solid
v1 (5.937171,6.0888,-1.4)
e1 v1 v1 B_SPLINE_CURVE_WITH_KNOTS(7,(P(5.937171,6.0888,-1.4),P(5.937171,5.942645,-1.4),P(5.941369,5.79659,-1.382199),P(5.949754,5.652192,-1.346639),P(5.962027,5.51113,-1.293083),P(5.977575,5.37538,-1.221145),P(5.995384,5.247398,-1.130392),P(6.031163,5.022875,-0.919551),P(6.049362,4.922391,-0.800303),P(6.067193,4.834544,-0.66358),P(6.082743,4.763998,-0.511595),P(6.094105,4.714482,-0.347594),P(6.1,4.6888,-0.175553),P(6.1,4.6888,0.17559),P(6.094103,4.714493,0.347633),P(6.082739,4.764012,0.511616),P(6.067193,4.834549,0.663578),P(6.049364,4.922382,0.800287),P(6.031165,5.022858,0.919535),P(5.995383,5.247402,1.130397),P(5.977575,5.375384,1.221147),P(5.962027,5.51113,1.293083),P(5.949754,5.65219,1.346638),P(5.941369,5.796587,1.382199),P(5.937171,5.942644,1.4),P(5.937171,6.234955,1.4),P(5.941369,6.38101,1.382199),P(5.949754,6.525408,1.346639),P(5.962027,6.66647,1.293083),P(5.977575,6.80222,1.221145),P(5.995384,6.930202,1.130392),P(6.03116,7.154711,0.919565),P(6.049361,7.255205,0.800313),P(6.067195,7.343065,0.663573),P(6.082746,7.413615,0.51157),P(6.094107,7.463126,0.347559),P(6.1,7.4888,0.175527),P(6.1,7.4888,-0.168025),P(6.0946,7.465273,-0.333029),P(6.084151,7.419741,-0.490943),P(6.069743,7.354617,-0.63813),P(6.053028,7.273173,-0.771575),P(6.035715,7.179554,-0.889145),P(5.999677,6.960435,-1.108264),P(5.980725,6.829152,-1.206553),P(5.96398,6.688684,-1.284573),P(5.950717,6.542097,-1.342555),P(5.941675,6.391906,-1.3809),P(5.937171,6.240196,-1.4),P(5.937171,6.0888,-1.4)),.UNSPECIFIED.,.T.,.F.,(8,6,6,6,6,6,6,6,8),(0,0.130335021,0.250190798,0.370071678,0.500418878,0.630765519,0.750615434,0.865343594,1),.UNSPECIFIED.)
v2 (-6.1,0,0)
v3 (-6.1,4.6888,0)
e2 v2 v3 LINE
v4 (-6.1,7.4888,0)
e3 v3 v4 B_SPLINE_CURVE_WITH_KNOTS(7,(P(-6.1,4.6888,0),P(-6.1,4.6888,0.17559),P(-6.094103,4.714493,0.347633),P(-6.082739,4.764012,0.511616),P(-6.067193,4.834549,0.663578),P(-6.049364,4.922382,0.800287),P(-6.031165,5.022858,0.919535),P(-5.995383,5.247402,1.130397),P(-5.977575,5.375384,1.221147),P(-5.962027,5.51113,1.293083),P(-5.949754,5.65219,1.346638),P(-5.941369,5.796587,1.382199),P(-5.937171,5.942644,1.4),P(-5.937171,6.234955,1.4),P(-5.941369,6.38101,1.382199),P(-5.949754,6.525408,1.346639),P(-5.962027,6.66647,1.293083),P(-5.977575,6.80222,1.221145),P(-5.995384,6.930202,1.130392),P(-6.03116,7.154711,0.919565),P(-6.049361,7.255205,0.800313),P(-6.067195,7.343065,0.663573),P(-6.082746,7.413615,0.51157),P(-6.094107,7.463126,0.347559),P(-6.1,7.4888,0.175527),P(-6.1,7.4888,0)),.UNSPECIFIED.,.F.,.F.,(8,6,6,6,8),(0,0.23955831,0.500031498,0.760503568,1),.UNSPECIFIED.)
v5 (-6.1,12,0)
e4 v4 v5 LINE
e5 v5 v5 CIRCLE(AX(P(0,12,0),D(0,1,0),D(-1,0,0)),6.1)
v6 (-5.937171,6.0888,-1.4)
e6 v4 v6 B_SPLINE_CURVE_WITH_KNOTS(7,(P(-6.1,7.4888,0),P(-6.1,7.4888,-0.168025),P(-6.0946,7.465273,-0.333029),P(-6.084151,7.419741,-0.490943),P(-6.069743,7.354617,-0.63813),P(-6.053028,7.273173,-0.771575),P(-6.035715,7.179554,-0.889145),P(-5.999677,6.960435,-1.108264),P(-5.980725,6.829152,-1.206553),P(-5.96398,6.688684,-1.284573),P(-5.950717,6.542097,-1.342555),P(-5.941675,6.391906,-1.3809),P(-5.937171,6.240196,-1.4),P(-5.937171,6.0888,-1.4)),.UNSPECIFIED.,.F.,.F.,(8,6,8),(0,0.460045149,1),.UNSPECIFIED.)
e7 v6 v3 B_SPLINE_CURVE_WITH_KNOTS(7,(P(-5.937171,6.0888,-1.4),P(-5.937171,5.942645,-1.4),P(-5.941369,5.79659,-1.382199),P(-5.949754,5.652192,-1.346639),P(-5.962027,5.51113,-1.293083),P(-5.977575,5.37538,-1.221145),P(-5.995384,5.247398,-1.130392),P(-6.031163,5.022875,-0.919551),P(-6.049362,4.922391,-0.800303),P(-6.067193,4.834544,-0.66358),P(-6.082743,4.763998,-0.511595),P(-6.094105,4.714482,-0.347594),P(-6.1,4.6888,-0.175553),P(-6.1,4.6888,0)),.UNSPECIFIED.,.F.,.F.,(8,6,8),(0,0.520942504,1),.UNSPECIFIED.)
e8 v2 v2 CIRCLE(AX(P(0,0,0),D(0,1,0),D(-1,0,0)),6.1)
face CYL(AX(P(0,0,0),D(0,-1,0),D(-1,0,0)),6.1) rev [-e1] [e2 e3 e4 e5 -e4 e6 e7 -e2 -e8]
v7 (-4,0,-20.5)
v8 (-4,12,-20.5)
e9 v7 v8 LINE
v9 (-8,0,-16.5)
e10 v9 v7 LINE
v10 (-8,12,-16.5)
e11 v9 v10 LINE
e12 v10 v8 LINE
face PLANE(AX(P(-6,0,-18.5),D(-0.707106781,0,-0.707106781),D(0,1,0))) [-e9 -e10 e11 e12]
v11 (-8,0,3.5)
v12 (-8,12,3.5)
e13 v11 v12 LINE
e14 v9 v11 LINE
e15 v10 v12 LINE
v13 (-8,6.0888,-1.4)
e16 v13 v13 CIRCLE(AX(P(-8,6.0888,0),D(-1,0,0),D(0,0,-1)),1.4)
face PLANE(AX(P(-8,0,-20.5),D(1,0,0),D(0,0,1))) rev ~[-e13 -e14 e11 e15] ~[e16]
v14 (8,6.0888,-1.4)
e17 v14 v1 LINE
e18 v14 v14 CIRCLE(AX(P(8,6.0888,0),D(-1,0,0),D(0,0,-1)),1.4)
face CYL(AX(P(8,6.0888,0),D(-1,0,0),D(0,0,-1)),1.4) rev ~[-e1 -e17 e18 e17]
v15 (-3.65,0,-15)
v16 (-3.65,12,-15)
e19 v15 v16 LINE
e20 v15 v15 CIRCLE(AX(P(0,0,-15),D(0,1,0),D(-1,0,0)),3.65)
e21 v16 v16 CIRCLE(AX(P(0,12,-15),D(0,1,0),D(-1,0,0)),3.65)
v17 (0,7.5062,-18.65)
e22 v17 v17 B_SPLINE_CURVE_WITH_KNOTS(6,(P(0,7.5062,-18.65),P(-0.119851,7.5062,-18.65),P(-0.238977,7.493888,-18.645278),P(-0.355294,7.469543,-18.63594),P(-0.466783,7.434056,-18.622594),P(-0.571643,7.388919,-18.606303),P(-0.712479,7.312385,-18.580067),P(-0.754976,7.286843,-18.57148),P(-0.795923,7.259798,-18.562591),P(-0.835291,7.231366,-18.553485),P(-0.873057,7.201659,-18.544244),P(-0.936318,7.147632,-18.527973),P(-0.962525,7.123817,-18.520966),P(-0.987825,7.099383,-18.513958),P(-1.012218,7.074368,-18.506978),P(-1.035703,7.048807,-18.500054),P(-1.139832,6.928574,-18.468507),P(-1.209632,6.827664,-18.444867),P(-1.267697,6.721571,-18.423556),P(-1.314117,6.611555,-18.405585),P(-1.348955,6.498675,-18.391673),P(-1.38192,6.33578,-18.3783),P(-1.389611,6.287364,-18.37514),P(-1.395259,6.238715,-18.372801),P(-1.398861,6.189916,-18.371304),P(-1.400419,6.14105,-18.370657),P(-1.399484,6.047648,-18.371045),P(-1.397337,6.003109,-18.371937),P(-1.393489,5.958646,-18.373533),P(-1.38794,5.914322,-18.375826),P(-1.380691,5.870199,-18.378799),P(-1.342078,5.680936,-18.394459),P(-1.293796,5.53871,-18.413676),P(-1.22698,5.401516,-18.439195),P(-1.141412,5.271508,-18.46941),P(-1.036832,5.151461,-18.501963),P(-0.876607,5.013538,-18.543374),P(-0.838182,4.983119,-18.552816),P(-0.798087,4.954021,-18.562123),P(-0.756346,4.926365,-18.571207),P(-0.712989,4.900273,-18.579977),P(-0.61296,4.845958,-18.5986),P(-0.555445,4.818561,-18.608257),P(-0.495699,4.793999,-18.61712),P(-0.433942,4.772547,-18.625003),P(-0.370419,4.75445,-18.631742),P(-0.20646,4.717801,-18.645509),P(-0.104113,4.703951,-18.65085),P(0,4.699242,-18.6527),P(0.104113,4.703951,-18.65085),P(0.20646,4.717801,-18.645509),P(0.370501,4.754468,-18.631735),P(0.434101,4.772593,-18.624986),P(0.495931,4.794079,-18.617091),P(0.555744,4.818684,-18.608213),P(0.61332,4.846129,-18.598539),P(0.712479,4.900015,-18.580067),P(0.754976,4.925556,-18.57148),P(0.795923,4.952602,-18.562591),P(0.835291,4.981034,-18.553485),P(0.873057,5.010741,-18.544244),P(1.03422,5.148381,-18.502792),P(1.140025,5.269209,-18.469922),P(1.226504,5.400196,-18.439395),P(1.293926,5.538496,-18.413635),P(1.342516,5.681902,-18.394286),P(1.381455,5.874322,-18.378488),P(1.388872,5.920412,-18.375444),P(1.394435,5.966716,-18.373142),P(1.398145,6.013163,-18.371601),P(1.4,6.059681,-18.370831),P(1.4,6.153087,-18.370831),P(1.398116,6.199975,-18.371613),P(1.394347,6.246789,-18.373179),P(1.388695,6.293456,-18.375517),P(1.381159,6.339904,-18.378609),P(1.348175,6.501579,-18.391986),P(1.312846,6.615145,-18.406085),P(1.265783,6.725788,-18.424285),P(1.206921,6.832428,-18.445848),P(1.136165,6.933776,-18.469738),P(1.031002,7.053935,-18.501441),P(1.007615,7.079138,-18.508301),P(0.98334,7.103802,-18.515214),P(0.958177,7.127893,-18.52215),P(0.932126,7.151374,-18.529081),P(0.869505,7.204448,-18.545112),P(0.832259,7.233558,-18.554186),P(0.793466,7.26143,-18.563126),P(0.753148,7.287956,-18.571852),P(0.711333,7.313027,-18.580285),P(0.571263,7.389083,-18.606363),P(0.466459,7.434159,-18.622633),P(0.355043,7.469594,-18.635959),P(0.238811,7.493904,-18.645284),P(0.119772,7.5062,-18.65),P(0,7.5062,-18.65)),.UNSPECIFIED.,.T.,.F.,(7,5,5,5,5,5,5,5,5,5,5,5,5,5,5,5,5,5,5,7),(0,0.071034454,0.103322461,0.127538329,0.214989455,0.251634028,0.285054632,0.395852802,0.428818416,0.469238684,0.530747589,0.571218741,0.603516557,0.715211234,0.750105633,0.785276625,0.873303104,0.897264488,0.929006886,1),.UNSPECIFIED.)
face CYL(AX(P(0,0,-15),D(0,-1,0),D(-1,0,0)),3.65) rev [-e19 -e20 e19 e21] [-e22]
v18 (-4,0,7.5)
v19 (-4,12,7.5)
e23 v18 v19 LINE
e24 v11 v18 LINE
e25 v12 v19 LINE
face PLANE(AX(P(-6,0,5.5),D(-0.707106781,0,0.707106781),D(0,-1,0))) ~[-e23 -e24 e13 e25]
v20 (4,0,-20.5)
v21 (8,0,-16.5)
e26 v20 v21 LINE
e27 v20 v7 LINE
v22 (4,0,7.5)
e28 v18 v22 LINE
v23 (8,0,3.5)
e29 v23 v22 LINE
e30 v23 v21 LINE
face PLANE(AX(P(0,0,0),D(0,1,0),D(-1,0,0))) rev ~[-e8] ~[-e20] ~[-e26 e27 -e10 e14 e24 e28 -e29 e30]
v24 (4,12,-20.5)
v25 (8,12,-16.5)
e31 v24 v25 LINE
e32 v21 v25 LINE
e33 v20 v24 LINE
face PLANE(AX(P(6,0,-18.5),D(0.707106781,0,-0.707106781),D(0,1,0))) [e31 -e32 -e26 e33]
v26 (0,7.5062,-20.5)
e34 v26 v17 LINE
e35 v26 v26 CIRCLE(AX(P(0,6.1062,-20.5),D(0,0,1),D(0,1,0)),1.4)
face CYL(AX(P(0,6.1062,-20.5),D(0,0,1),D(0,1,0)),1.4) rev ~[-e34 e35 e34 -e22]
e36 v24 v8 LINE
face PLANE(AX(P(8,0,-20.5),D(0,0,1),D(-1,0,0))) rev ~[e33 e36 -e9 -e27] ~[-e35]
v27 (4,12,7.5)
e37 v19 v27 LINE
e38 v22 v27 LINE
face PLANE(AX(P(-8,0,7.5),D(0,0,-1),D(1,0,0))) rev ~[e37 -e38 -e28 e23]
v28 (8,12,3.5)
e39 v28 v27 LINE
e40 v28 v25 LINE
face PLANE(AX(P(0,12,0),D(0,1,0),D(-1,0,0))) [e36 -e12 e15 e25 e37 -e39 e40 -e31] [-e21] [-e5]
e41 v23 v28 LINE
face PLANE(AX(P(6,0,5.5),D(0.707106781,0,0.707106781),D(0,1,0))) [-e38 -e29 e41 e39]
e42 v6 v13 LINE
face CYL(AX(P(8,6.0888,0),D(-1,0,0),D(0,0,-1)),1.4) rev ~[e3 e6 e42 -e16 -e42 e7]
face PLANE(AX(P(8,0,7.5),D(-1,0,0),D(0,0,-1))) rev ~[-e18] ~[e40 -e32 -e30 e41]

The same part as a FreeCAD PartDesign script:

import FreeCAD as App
import Part
import Sketcher
from FreeCAD import Vector


def edges_at(feature, points):
    """Names of the edges that pass closest to the given points."""
    edges = feature.Shape.Edges
    near = lambda p: min(range(len(edges)), key=lambda i: edges[i].distToShape(Part.Vertex(*p))[0])
    return sorted({f"Edge{near(p) + 1}" for p in points})

doc = App.newDocument("Part")
body = doc.addObject("PartDesign::Body", "Body")

# Sketch on XZ plane
sketch1 = doc.addObject("Sketcher::SketchObject", "Sketch")
body.addObject(sketch1)
sketch1.AttachmentSupport = (doc.XZ_Plane, [""])
sketch1.MapMode = "FlatFace"
sketch1.addGeometry([
    Part.LineSegment(Vector(-8, -20.5, 0), Vector(-8, 7.5, 0)),  # 0
    Part.LineSegment(Vector(-8, 7.5, 0), Vector(8, 7.5, 0)),  # 1
    Part.LineSegment(Vector(8, 7.5, 0), Vector(8, -20.5, 0)),  # 2
    Part.LineSegment(Vector(8, -20.5, 0), Vector(-8, -20.5, 0)),  # 3
    Part.Circle(Vector(0, -15, 0), Vector(0, 0, 1), 3.6),  # 4
    Part.Circle(Vector(0, 0, 0), Vector(0, 0, 1), 6.1),  # 5
], False)
sketch1.addConstraint([
    Sketcher.Constraint("Coincident", 0, 2, 1, 1),
    Sketcher.Constraint("Coincident", 1, 2, 2, 1),
    Sketcher.Constraint("Coincident", 2, 2, 3, 1),
    Sketcher.Constraint("Coincident", 3, 2, 0, 1),
    Sketcher.Constraint("Vertical", 0),
    Sketcher.Constraint("Horizontal", 1),
    Sketcher.Constraint("Vertical", 2),
    Sketcher.Constraint("Horizontal", 3),
    Sketcher.Constraint("Coincident", 5, 3, -1, 1),
    Sketcher.Constraint("PointOnObject", 4, 3, -2),
    Sketcher.Constraint("Diameter", 4, 7.3),
    Sketcher.Constraint("Diameter", 5, 12.2),
    Sketcher.Constraint("DistanceX", 1, 1, 1, 2, 16.0),
    Sketcher.Constraint("DistanceY", 0, 1, 0, 2, 28.0),
    Sketcher.Constraint("DistanceY", 4, 3, -1, 1, 15.0),
    Sketcher.Constraint("DistanceX", 0, 2, -1, 1, 8.0),
    Sketcher.Constraint("DistanceY", 2, 2, 4, 3, 5.5),
])
pad1 = doc.addObject("PartDesign::Pad", "Pad")
body.addObject(pad1)
pad1.Profile = sketch1
pad1.Length = 12
pad1.Reversed = True
doc.recompute()

chamfer = doc.addObject("PartDesign::Chamfer", "Chamfer")
body.addObject(chamfer)
chamfer.Base = (pad1, edges_at(pad1, [
    (8, 6, -20.5),
    (-8, 6, -20.5),
    (8, 6, 7.5),
    (-8, 6, 7.5),
]))
chamfer.Size = 4

# Sketch on YZ plane
sketch2 = doc.addObject("Sketcher::SketchObject", "Sketch001")
body.addObject(sketch2)
sketch2.AttachmentSupport = (doc.YZ_Plane, [""])
sketch2.MapMode = "FlatFace"
sketch2.AttachmentOffset = App.Placement(Vector(0, 0, 8), App.Rotation())
sketch2.addGeometry(Part.Circle(Vector(6.1, 0, 0), Vector(0, 0, 1), 1.4), False)
sketch2.addConstraint([
    Sketcher.Constraint("PointOnObject", 0, 3, -1),
    Sketcher.Constraint("Diameter", 0, 2.8),
    Sketcher.Constraint("DistanceX", -1, 1, 0, 3, 6.0888),
])
doc.recompute()
hole = doc.addObject("PartDesign::Hole", "Hole")
body.addObject(hole)
hole.Profile = sketch2
hole.ThreadType = "None"
hole.Diameter = 2.8
hole.DepthType = "Dimension"
hole.Depth = 17.75
hole.DrillPoint = "Flat"

# Sketch on XY plane
sketch3 = doc.addObject("Sketcher::SketchObject", "Sketch002")
body.addObject(sketch3)
sketch3.AttachmentSupport = (doc.XY_Plane, [""])
sketch3.MapMode = "FlatFace"
sketch3.AttachmentOffset = App.Placement(Vector(0, 0, -20.5), App.Rotation())
sketch3.addGeometry(Part.Circle(Vector(0, 6.1, 0), Vector(0, 0, 1), 1.4), False)
sketch3.addConstraint([
    Sketcher.Constraint("PointOnObject", 0, 3, -2),
    Sketcher.Constraint("Diameter", 0, 2.8),
    Sketcher.Constraint("DistanceY", -1, 1, 0, 3, 6.1062),
])
doc.recompute()
hole2 = doc.addObject("PartDesign::Hole", "Hole001")
body.addObject(hole2)
hole2.Profile = sketch3
hole2.ThreadType = "None"
hole2.Diameter = 2.8
hole2.DepthType = "Dimension"
hole2.Depth = 5
hole2.DrillPoint = "Flat"
hole2.Reversed = True

doc.recompute()
